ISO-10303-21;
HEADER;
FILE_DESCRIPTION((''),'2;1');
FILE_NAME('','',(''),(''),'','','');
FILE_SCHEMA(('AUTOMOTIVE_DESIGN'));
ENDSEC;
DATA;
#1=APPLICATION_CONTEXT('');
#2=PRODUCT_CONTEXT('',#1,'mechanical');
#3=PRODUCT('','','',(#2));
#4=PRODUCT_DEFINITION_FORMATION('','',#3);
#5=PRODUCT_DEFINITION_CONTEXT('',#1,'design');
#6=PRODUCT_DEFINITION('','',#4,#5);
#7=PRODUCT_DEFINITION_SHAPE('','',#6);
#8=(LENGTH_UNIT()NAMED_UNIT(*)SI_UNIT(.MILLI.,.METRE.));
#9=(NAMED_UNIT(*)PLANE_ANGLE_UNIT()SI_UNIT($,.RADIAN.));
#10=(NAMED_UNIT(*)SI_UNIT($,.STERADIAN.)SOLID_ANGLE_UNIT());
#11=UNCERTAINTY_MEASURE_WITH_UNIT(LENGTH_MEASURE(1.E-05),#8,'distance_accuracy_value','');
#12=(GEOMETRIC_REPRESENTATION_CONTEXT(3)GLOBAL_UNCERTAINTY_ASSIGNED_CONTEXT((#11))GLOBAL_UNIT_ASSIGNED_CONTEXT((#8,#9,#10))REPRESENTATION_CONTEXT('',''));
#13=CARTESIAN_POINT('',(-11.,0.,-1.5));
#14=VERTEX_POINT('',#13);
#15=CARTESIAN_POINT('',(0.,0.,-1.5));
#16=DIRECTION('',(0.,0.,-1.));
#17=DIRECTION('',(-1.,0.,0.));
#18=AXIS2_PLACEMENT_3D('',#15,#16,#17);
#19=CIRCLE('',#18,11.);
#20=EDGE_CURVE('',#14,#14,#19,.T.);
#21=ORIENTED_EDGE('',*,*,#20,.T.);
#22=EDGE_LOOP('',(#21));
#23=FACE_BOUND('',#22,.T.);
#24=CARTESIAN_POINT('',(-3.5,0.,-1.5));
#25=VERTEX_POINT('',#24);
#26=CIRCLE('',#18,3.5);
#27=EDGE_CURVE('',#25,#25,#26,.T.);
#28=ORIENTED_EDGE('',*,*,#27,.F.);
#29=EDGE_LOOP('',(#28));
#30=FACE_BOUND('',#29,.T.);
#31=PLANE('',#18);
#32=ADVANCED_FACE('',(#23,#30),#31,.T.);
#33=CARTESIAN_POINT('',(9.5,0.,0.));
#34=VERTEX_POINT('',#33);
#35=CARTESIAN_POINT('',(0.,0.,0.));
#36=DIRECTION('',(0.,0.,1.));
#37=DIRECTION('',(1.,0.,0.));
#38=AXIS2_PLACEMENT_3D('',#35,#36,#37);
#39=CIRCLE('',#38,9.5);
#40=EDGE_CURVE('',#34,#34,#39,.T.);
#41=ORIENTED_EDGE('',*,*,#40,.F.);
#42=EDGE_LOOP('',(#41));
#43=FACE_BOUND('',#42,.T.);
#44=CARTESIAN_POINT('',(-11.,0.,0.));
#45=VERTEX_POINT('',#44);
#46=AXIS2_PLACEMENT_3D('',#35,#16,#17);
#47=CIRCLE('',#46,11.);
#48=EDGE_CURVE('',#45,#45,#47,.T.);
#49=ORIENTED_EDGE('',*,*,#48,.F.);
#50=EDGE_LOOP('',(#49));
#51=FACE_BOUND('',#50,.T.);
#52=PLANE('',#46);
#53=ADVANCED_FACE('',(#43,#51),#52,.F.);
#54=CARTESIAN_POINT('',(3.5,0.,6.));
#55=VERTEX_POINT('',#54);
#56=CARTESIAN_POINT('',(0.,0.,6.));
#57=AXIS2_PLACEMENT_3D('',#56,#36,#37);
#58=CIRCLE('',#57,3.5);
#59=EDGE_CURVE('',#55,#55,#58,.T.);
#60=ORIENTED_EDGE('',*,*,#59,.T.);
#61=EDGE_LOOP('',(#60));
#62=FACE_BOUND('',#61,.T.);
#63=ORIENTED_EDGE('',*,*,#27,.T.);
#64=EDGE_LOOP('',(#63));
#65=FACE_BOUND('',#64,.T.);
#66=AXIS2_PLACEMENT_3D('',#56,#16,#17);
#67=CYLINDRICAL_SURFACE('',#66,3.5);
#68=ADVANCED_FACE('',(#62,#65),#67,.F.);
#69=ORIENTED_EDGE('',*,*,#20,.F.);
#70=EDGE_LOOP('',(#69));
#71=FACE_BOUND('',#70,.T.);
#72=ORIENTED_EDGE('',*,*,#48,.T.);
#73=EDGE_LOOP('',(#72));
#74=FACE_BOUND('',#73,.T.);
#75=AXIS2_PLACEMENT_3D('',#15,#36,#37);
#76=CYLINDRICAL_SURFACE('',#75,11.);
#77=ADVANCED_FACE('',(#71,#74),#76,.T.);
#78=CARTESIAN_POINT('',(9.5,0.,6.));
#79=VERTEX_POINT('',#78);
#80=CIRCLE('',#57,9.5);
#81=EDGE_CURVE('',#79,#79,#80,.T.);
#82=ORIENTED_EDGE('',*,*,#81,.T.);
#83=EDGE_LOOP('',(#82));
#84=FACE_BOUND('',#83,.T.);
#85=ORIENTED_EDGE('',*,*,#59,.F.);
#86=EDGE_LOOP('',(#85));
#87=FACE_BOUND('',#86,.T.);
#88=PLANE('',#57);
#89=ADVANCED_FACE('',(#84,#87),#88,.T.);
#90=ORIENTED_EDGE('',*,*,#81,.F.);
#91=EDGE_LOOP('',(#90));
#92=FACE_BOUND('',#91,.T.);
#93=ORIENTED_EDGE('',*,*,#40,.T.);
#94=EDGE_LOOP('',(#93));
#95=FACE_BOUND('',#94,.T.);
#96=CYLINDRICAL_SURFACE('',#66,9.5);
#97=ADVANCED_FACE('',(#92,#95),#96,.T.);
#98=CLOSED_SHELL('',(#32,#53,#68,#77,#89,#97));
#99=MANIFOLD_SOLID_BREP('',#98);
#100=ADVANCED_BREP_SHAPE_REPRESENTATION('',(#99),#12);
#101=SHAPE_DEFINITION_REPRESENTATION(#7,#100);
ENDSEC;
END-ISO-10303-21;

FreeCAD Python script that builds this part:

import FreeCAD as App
import Part
import Sketcher
Q = App.Units.Quantity

doc = App.newDocument("Part")
params = doc.addObject("Spreadsheet::Sheet", "Params")
for row, (alias, value) in enumerate([
    ("sketch1_diameter", "19 mm"),
    ("sketch1_diameter2", "7 mm"),
    ("pad1_length", "6 mm"),
    ("sketch2_diameter", "22 mm"),
    ("sketch2_diameter2", "7 mm"),
    ("pad2_length", "1.5 mm"),
], start=1):
    params.set(f"A{row}", alias)
    params.set(f"B{row}", "=" + value)
    params.setAlias(f"B{row}", alias)

body = doc.addObject("PartDesign::Body", "Body")

sketch1 = doc.addObject("Sketcher::SketchObject", "Sketch")
body.addObject(sketch1)
sketch1.AttachmentSupport = (doc.XY_Plane, [""])
sketch1.MapMode = "FlatFace"
sketch1.addGeometry([
    Part.Circle(App.Vector(0, 0, 0), App.Vector(0, 0, 1), 9.5),
    Part.Circle(App.Vector(0, 0, 0), App.Vector(0, 0, 1), 3.5),
], False)
sketch1.addConstraint([
    Sketcher.Constraint("Coincident", 0, 3, -1, 1),
    Sketcher.Constraint("Coincident", 1, 3, -1, 1),
    Sketcher.Constraint("Diameter", 0, Q("19 mm")),
    Sketcher.Constraint("Diameter", 1, Q("7 mm")),
])
sketch1.setExpression("Constraints[2]", "Params.sketch1_diameter")
sketch1.setExpression("Constraints[3]", "Params.sketch1_diameter2")
pad1 = doc.addObject("PartDesign::Pad", "Pad")
body.addObject(pad1)
pad1.Profile = sketch1
pad1.setExpression("Length", "Params.pad1_length")

sketch2 = doc.addObject("Sketcher::SketchObject", "Sketch001")
body.addObject(sketch2)
sketch2.AttachmentSupport = (doc.XY_Plane, [""])
sketch2.MapMode = "FlatFace"
sketch2.addGeometry([
    Part.Circle(App.Vector(0, 0, 0), App.Vector(0, 0, 1), 11),
    Part.Circle(App.Vector(0, 0, 0), App.Vector(0, 0, 1), 3.5),
], False)
sketch2.addConstraint([
    Sketcher.Constraint("Coincident", 0, 3, -1, 1),
    Sketcher.Constraint("Coincident", 1, 3, -1, 1),
    Sketcher.Constraint("Diameter", 0, Q("22 mm")),
    Sketcher.Constraint("Diameter", 1, Q("7 mm")),
])
sketch2.setExpression("Constraints[2]", "Params.sketch2_diameter")
sketch2.setExpression("Constraints[3]", "Params.sketch2_diameter2")
pad2 = doc.addObject("PartDesign::Pad", "Pad001")
body.addObject(pad2)
pad2.Profile = sketch2
pad2.setExpression("Length", "Params.pad2_length")
pad2.Reversed = True

doc.recompute()
